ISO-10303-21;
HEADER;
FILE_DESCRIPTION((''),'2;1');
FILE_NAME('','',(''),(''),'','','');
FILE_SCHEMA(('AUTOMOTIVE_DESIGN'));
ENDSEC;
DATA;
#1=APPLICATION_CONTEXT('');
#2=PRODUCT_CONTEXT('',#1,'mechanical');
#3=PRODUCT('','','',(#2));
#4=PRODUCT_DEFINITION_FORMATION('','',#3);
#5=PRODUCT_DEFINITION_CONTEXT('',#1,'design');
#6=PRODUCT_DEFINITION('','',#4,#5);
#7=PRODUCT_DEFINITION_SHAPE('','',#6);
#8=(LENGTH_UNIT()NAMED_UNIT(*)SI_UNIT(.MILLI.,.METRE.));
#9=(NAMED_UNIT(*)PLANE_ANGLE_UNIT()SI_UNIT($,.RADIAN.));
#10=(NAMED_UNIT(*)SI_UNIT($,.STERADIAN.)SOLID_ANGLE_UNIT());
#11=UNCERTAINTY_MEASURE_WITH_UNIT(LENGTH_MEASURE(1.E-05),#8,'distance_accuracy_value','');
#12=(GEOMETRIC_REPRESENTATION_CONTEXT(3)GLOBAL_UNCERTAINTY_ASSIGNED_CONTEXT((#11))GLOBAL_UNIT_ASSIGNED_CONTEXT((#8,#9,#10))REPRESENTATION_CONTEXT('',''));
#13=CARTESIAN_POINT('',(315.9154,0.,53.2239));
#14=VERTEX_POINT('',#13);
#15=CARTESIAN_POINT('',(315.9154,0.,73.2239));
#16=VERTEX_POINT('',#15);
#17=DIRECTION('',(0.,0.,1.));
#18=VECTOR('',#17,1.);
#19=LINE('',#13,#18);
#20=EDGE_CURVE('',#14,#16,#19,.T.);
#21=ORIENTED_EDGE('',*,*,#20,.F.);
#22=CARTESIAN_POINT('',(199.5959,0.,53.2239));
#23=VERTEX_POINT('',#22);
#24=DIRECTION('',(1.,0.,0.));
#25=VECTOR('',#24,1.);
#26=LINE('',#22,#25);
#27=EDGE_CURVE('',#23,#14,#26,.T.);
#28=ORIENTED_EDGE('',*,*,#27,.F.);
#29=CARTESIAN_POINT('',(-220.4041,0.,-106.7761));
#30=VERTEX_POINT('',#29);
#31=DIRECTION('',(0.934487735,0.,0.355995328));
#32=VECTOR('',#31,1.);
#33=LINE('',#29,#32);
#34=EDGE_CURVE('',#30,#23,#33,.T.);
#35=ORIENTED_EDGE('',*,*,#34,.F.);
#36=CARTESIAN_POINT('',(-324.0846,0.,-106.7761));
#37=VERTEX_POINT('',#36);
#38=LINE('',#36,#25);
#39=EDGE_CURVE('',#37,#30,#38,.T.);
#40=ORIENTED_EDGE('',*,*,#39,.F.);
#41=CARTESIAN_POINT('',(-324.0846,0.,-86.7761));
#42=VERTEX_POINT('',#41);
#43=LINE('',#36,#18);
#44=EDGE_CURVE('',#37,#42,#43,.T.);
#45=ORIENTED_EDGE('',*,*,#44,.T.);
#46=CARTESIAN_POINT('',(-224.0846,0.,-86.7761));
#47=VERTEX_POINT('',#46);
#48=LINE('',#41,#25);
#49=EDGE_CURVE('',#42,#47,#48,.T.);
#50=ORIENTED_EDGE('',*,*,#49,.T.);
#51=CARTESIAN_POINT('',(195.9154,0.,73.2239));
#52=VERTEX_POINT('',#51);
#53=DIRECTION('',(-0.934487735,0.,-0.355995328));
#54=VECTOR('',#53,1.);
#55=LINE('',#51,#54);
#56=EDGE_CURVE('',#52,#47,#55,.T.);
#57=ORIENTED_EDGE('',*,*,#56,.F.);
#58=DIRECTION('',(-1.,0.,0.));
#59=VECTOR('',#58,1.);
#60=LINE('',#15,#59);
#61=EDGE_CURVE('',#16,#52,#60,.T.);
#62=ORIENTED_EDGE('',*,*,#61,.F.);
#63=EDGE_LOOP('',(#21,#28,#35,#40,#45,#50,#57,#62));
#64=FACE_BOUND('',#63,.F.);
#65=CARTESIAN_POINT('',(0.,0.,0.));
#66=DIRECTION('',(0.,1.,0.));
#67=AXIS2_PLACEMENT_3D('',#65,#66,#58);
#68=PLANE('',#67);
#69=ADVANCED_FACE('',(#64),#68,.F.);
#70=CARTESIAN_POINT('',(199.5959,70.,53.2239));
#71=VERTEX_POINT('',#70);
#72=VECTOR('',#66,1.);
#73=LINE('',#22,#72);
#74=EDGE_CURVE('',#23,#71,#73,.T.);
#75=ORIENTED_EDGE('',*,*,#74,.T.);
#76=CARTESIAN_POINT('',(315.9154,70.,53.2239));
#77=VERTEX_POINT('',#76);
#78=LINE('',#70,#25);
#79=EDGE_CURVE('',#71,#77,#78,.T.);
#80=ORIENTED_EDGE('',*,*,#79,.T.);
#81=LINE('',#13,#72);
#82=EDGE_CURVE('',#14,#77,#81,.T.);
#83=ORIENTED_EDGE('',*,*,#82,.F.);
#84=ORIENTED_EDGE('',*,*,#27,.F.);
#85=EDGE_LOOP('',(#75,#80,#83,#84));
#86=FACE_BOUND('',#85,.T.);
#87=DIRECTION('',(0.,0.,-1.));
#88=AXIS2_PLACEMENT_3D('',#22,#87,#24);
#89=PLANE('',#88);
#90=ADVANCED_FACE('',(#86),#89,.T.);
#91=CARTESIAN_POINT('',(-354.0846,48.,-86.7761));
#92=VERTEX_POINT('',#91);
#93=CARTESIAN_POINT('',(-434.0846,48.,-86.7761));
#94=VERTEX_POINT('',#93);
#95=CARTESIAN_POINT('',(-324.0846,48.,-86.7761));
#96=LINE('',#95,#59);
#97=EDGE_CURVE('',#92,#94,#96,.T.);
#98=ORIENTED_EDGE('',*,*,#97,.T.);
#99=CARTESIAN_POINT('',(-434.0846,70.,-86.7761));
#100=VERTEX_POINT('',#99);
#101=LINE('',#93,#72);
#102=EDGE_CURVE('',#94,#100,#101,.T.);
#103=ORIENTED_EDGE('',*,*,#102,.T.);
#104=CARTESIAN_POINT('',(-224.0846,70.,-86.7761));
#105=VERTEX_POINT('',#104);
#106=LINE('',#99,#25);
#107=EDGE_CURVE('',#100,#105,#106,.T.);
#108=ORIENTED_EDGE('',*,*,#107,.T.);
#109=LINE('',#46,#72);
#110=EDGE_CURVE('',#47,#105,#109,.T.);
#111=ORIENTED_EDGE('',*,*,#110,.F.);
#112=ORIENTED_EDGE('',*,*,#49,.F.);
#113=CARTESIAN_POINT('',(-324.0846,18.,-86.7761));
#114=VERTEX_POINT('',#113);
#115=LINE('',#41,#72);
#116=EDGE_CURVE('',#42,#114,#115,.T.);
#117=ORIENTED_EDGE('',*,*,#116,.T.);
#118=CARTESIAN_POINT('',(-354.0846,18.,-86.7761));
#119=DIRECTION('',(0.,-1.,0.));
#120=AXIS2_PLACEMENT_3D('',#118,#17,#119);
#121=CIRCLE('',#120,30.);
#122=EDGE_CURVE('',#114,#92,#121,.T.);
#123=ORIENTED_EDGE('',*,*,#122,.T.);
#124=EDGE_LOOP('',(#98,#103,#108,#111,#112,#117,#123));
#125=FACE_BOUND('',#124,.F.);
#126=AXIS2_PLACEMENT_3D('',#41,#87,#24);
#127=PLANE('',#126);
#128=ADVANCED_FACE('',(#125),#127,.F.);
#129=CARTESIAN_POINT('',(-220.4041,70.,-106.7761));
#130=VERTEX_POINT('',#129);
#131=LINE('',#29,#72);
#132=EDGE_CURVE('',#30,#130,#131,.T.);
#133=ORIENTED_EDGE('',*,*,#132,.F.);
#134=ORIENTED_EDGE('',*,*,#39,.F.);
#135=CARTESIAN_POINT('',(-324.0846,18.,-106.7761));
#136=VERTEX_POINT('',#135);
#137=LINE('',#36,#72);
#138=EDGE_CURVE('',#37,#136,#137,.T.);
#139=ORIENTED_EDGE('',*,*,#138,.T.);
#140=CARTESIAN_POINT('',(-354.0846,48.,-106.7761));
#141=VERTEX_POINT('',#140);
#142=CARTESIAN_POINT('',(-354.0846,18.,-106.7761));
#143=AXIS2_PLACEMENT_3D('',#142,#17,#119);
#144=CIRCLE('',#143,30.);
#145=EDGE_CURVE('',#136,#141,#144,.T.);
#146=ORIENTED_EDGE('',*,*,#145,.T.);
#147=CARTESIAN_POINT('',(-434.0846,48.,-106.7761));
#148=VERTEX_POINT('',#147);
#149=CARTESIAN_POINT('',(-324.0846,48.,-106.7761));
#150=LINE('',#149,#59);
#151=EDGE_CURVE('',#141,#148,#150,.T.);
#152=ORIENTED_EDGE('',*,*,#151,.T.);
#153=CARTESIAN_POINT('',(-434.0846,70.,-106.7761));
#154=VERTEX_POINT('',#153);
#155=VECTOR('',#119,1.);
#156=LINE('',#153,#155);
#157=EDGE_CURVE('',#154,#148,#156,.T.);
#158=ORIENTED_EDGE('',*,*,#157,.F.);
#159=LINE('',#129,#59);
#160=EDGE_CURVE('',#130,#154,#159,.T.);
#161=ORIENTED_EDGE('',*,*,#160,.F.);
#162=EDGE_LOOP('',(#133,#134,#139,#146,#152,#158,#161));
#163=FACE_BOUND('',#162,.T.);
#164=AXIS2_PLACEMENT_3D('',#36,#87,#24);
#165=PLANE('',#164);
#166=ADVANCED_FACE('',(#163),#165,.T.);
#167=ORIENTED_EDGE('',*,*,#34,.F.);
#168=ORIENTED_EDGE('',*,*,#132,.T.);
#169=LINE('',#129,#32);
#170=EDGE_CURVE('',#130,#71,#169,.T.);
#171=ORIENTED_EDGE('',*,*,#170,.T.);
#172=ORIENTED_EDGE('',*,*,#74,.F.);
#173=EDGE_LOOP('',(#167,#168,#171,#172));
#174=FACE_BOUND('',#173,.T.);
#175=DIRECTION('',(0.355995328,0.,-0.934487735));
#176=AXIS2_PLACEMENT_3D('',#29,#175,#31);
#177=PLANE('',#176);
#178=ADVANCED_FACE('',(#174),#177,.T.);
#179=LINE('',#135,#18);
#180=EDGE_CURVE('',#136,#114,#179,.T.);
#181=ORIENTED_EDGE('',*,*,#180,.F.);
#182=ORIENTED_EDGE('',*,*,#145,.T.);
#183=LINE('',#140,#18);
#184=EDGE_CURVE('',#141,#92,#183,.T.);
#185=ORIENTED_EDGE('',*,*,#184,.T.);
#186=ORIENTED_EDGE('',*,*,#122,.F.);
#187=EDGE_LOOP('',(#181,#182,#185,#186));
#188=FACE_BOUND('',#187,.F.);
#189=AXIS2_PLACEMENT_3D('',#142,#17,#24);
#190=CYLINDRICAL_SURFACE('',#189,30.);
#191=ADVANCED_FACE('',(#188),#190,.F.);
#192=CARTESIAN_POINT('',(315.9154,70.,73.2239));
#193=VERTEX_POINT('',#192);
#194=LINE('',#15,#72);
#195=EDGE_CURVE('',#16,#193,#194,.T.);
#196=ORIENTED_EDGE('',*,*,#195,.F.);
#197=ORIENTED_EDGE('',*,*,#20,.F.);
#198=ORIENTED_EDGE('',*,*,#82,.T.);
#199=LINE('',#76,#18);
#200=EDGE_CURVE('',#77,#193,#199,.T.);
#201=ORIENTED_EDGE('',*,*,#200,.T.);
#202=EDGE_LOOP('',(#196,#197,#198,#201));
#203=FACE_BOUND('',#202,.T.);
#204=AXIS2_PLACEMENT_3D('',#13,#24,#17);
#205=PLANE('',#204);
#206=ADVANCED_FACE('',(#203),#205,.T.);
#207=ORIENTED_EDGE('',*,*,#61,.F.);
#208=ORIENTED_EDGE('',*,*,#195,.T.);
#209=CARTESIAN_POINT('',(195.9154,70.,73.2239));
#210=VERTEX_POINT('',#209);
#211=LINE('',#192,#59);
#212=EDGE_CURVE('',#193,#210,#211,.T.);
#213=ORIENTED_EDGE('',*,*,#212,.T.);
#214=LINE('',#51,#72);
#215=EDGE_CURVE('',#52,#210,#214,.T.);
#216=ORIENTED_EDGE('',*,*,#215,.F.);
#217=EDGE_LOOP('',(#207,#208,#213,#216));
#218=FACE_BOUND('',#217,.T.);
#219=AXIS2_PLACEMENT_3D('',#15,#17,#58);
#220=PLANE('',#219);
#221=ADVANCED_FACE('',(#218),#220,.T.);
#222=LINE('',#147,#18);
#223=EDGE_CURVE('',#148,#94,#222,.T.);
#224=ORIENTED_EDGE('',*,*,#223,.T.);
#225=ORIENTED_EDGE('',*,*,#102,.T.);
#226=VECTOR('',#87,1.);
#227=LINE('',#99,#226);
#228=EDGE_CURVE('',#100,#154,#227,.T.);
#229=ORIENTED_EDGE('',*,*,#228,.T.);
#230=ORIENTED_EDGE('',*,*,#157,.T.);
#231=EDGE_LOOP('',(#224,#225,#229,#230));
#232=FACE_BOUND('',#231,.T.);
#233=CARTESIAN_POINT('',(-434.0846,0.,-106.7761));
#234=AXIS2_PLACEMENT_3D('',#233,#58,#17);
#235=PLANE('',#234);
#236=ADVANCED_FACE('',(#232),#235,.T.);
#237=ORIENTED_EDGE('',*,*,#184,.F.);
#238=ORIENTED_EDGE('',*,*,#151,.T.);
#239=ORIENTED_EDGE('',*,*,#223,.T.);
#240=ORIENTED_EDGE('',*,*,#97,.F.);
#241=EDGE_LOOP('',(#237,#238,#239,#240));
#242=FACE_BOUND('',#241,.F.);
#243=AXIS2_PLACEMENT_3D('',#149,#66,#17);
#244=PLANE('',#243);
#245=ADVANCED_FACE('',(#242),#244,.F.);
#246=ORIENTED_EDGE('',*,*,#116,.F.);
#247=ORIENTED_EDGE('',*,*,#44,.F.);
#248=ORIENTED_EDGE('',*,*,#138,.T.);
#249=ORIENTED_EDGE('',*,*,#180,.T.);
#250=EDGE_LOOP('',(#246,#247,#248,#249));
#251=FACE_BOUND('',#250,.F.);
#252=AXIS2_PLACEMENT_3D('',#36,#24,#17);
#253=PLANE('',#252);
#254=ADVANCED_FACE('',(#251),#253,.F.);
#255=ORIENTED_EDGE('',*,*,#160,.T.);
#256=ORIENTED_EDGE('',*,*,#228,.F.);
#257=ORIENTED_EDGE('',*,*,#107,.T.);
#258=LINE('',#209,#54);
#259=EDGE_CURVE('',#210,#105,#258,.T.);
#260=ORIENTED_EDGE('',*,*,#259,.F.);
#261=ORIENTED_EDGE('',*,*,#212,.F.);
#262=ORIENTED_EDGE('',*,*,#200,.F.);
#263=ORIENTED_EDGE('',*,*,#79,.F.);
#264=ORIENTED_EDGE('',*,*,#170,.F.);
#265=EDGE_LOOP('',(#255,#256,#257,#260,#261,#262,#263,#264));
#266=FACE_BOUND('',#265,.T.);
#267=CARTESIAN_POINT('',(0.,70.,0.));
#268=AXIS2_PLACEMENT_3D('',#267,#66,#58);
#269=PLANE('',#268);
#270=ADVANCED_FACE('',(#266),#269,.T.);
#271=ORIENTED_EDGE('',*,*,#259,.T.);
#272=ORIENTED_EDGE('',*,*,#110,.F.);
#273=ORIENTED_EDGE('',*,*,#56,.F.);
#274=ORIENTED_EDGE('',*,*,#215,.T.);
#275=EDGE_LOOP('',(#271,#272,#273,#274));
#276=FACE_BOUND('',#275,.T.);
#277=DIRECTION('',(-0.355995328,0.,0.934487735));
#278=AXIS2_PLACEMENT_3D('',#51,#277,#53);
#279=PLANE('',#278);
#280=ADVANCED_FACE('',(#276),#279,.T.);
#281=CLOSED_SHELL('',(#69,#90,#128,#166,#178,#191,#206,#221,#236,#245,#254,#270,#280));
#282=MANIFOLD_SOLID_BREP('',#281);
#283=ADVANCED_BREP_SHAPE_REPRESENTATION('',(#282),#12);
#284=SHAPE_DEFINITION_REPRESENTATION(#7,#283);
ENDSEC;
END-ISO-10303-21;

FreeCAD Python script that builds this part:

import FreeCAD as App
import Part
import Sketcher
Q = App.Units.Quantity


def edges_at(feature, points):
    """Names of the edges that pass closest to the given points."""
    edges = feature.Shape.Edges
    near = lambda p: min(range(len(edges)), key=lambda i: edges[i].distToShape(Part.Vertex(*p))[0])
    return sorted({f"Edge{near(p) + 1}" for p in points})

doc = App.newDocument("Part")
body = doc.addObject("PartDesign::Body", "Body")

sketch1 = body.newObject("Sketcher::SketchObject", "Sketch")
sketch1.AttachmentSupport = (doc.getObject("XZ_Plane"), [""])
sketch1.MapMode = "FlatFace"
sketch1.addGeometry([
    Part.LineSegment(App.Vector(196, 73, 0), App.Vector(316, 73, 0)),
    Part.LineSegment(App.Vector(316, 73, 0), App.Vector(316, 53, 0)),
    Part.LineSegment(App.Vector(316, 53, 0), App.Vector(200, 53, 0)),
    Part.LineSegment(App.Vector(200, 53, 0), App.Vector(-220, -107, 0)),
    Part.LineSegment(App.Vector(-220, -107, 0), App.Vector(-324, -107, 0)),
    Part.LineSegment(App.Vector(-324, -107, 0), App.Vector(-324, -87, 0)),
    Part.LineSegment(App.Vector(-324, -87, 0), App.Vector(-224, -87, 0)),
    Part.LineSegment(App.Vector(-224, -87, 0), App.Vector(196, 73, 0)),
], False)
sketch1.addConstraint([
    Sketcher.Constraint("Coincident", 0, 2, 1, 1),
    Sketcher.Constraint("Coincident", 1, 2, 2, 1),
    Sketcher.Constraint("Coincident", 2, 2, 3, 1),
    Sketcher.Constraint("Coincident", 3, 2, 4, 1),
    Sketcher.Constraint("Coincident", 4, 2, 5, 1),
    Sketcher.Constraint("Coincident", 5, 2, 6, 1),
    Sketcher.Constraint("Coincident", 6, 2, 7, 1),
    Sketcher.Constraint("Coincident", 7, 2, 0, 1),
    Sketcher.Constraint("Horizontal", 0),
    Sketcher.Constraint("Vertical", 1),
    Sketcher.Constraint("Horizontal", 2),
    Sketcher.Constraint("Horizontal", 4),
    Sketcher.Constraint("Vertical", 5),
    Sketcher.Constraint("Horizontal", 6),
    Sketcher.Constraint("Parallel", 3, 7),
    Sketcher.Constraint("Equal", 1, 5),
    Sketcher.Constraint("DistanceX", 0, 1, 0, 2, Q("120 mm")),
    Sketcher.Constraint("DistanceX", 6, 1, 6, 2, Q("100 mm")),
    Sketcher.Constraint("DistanceY", 1, 2, 1, 1, Q("20 mm")),
    Sketcher.Constraint("Distance", 3, Q("449.444 mm")),
    Sketcher.Constraint("DistanceX", 3, 2, 2, 2, Q("420 mm")),
    Sketcher.Constraint("DistanceX", 2, 2, 2, 1, Q("116.3195 mm")),
    Sketcher.Constraint("DistanceY", -1, 1, 0, 2, Q("73.224 mm")),
    Sketcher.Constraint("DistanceX", -1, 1, 2, 2, Q("199.596 mm")),
])
pad1 = body.newObject("PartDesign::Pad", "Pad")
pad1.Profile = sketch1
pad1.Length = 70
pad1.Reversed = True

sketch2 = body.newObject("Sketcher::SketchObject", "Sketch001")
sketch2.AttachmentSupport = (doc.getObject("YZ_Plane"), [""])
sketch2.MapMode = "FlatFace"
sketch2.AttachmentOffset = App.Placement(App.Vector(0, 0, -324.0846), App.Rotation())
sketch2.addGeometry([
    Part.LineSegment(App.Vector(70, -107, 0), App.Vector(48, -107, 0)),
    Part.LineSegment(App.Vector(48, -107, 0), App.Vector(48, -87, 0)),
    Part.LineSegment(App.Vector(48, -87, 0), App.Vector(70, -87, 0)),
    Part.LineSegment(App.Vector(70, -87, 0), App.Vector(70, -107, 0)),
], False)
sketch2.addConstraint([
    Sketcher.Constraint("Coincident", 0, 2, 1, 1),
    Sketcher.Constraint("Coincident", 1, 2, 2, 1),
    Sketcher.Constraint("Coincident", 2, 2, 3, 1),
    Sketcher.Constraint("Coincident", 3, 2, 0, 1),
    Sketcher.Constraint("Horizontal", 0),
    Sketcher.Constraint("Vertical", 1),
    Sketcher.Constraint("Horizontal", 2),
    Sketcher.Constraint("Vertical", 3),
    Sketcher.Constraint("DistanceX", 0, 2, 0, 1, Q("22 mm")),
    Sketcher.Constraint("DistanceY", 1, 1, 1, 2, Q("20 mm")),
    Sketcher.Constraint("DistanceX", -1, 1, 0, 2, Q("48 mm")),
    Sketcher.Constraint("DistanceY", 0, 2, -1, 1, Q("106.776 mm")),
])
pad2 = body.newObject("PartDesign::Pad", "Pad001")
pad2.Profile = sketch2
pad2.Length = 110
pad2.Reversed = True
doc.recompute()

fillet = body.newObject("PartDesign::Fillet", "Fillet")
fillet.Base = (pad2, edges_at(pad2, [(-324.085, 48, -96.776)]))
fillet.Radius = 30

doc.recompute()
